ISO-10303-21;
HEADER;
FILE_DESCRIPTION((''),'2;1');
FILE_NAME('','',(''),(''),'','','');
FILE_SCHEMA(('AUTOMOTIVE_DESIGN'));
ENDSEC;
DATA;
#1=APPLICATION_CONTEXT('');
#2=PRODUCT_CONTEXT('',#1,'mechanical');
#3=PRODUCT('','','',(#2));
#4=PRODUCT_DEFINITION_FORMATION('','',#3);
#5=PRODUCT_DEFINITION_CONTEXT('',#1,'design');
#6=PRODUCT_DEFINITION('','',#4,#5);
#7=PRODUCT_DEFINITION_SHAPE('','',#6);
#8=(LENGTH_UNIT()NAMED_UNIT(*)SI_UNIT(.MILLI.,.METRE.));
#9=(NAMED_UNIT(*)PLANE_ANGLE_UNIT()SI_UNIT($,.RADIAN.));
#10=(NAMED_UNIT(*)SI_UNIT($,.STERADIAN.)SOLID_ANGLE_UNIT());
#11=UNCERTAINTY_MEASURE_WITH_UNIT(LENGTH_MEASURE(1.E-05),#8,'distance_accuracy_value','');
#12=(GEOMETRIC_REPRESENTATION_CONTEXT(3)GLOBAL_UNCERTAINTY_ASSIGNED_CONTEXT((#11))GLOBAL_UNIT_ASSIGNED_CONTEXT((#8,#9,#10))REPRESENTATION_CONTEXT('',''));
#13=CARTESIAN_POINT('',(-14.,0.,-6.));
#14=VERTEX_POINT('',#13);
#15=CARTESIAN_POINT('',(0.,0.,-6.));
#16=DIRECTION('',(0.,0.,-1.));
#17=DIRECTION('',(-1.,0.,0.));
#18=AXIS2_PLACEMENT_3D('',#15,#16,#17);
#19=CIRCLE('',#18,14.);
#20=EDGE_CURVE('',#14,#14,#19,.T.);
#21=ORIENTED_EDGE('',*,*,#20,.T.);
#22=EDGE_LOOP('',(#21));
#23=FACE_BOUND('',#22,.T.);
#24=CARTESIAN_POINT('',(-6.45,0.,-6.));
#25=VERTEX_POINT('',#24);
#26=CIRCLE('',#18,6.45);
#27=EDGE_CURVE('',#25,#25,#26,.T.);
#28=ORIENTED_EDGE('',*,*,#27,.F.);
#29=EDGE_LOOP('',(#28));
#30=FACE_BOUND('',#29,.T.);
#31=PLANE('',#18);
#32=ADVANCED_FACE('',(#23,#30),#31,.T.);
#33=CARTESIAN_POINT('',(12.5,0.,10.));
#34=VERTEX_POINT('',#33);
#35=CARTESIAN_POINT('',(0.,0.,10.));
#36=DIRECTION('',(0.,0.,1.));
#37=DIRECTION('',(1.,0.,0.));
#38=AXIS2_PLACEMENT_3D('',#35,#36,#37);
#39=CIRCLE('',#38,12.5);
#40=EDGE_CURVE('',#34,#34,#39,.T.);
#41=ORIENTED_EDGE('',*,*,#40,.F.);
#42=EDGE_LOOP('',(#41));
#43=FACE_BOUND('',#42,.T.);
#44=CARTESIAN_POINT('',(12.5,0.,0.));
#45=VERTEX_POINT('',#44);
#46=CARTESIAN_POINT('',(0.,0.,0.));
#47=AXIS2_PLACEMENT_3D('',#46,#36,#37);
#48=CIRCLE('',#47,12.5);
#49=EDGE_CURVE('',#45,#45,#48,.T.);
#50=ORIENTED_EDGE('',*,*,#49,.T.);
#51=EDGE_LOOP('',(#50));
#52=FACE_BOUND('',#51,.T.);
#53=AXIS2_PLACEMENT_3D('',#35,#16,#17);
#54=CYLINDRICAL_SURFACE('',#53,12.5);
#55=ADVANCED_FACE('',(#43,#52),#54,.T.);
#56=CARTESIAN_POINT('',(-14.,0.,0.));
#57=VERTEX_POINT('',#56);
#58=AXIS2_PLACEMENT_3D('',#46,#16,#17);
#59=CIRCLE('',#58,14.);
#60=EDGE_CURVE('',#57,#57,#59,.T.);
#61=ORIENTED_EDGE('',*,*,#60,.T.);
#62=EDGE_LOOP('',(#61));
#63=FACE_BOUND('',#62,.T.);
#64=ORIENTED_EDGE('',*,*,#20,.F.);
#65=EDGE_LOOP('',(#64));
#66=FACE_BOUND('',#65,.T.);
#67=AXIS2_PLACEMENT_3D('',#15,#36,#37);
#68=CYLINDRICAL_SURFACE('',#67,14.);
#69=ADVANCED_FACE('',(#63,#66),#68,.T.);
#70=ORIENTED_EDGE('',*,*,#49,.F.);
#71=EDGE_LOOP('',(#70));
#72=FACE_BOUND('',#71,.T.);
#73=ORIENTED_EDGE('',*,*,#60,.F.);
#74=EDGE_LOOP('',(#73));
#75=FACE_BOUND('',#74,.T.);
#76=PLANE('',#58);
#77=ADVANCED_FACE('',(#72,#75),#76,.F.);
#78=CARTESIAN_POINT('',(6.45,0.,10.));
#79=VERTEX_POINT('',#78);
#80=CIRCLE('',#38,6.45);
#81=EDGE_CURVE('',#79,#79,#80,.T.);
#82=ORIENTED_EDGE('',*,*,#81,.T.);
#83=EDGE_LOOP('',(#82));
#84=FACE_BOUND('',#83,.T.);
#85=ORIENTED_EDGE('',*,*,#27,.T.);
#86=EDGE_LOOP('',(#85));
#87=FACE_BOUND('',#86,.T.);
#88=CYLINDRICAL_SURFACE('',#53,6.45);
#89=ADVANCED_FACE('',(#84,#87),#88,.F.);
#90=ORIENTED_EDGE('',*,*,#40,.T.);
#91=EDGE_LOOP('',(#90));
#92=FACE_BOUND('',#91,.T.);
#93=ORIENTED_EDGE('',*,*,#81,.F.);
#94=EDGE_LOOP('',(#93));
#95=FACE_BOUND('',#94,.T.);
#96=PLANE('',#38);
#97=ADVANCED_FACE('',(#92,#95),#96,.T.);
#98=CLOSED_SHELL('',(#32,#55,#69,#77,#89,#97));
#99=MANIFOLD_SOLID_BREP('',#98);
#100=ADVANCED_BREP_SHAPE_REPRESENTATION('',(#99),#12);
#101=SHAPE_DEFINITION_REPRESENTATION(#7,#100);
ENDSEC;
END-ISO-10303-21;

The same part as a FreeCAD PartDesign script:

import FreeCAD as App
import Part
import Sketcher
Q = App.Units.Quantity

doc = App.newDocument("Part")
body = doc.addObject("PartDesign::Body", "Body")

# Sketch on XY plane
sketch1 = body.newObject("Sketcher::SketchObject", "Sketch")
sketch1.AttachmentSupport = (doc.getObject("XY_Plane"), [""])
sketch1.MapMode = "FlatFace"
sketch1.addGeometry([
    Part.Circle(App.Vector(0, 0, 0), App.Vector(0, 0, 1), 12.5),
    Part.Circle(App.Vector(0, 0, 0), App.Vector(0, 0, 1), 6.45),
], False)
sketch1.addConstraint([
    Sketcher.Constraint("Coincident", 0, 3, -1, 1),
    Sketcher.Constraint("Coincident", 1, 3, -1, 1),
    Sketcher.Constraint("Diameter", 0, Q("25 mm")),
    Sketcher.Constraint("Diameter", 1, Q("12.9 mm")),
])
pad1 = body.newObject("PartDesign::Pad", "Pad")
pad1.Profile = sketch1
pad1.Length = 10

# Sketch on XY plane
sketch2 = body.newObject("Sketcher::SketchObject", "Sketch001")
sketch2.AttachmentSupport = (doc.getObject("XY_Plane"), [""])
sketch2.MapMode = "FlatFace"
sketch2.AttachmentOffset = App.Placement(App.Vector(0, 0, -6), App.Rotation())
sketch2.addGeometry([
    Part.Circle(App.Vector(0, 0, 0), App.Vector(0, 0, 1), 14),
    Part.Circle(App.Vector(0, 0, 0), App.Vector(0, 0, 1), 6.45),
], False)
sketch2.addConstraint([
    Sketcher.Constraint("Coincident", 0, 3, -1, 1),
    Sketcher.Constraint("Coincident", 1, 3, -1, 1),
    Sketcher.Constraint("Diameter", 0, Q("28 mm")),
    Sketcher.Constraint("Diameter", 1, Q("12.9 mm")),
])
pad2 = body.newObject("PartDesign::Pad", "Pad001")
pad2.Profile = sketch2
pad2.Length = 6

doc.recompute()
